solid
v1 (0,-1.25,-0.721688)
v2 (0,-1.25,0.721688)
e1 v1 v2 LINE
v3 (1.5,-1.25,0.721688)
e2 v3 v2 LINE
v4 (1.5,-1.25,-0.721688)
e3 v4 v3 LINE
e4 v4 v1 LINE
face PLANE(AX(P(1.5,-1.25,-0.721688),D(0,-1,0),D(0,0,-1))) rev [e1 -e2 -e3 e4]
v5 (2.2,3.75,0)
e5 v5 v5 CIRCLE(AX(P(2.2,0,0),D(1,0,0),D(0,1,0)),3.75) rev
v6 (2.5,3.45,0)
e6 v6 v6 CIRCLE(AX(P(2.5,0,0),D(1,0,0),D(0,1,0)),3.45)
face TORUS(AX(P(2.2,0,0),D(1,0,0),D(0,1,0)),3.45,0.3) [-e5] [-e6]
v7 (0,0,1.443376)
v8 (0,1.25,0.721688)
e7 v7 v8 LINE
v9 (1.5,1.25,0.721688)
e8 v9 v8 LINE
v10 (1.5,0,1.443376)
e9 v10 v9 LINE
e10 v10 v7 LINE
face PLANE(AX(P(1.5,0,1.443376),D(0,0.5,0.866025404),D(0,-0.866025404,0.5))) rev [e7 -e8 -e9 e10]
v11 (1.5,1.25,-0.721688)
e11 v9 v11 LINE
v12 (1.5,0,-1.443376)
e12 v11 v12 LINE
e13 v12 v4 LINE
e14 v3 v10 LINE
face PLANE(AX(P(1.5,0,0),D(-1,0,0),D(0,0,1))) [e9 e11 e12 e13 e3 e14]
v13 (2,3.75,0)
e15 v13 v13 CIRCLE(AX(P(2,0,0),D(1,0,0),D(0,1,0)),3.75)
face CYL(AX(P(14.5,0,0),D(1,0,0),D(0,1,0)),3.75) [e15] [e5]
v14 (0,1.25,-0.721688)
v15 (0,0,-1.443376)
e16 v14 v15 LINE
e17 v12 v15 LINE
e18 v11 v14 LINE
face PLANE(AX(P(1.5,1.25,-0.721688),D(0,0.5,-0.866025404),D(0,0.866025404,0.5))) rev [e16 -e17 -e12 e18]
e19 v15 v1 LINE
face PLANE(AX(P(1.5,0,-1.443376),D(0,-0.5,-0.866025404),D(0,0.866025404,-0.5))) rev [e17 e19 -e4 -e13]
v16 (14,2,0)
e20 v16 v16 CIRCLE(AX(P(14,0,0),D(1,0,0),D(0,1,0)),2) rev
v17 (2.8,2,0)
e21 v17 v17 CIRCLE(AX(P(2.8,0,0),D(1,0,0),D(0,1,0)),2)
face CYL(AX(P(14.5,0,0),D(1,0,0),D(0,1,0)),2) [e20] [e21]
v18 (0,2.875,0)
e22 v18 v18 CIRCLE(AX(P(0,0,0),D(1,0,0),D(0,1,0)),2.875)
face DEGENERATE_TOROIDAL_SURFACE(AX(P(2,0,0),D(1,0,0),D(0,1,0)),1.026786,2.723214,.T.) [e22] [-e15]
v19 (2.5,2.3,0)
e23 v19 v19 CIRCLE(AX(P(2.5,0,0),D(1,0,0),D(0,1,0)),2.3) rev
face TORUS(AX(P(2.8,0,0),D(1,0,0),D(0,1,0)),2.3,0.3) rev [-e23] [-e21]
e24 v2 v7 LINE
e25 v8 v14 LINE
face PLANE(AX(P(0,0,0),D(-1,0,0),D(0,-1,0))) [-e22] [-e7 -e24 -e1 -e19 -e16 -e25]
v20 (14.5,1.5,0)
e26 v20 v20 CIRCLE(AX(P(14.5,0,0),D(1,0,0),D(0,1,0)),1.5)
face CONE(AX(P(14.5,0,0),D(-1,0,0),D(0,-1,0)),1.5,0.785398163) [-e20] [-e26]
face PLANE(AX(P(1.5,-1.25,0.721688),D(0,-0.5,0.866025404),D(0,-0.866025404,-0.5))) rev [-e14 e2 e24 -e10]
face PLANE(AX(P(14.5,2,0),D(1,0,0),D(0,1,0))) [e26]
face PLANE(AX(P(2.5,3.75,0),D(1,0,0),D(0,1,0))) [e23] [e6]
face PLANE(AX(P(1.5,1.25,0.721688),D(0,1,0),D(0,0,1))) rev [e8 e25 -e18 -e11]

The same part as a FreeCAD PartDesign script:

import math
import FreeCAD as App
import Part
import Sketcher
from FreeCAD import Vector
Q = App.Units.Quantity


def edges_at(feature, points):
    """Names of the edges that pass closest to the given points."""
    edges = feature.Shape.Edges
    near = lambda p: min(range(len(edges)), key=lambda i: edges[i].distToShape(Part.Vertex(*p))[0])
    return sorted({f"Edge{near(p) + 1}" for p in points})


def add_polygon(sketch, points):
    """Adds a closed chain of lines whose ends are joined by coincident constraints."""
    first, n = sketch.GeometryCount, len(points)
    for a, b in zip(points, points[1:] + points[:1]):
        sketch.addGeometry(Part.LineSegment(App.Vector(*a, 0), App.Vector(*b, 0)), False)
    for i in range(n):
        sketch.addConstraint(Sketcher.Constraint("Coincident", first + i, 2, first + (i + 1) % n, 1))

doc = App.newDocument("Part")
body = doc.addObject("PartDesign::Body", "Body")

sketch1 = body.newObject("Sketcher::SketchObject", "Sketch")
sketch1.AttachmentSupport = (doc.getObject("XY_Plane"), [""])
sketch1.MapMode = "FlatFace"
sketch1.addGeometry([
    Part.LineSegment(Vector(0, 2.9, 0), Vector(0, 0, 0)),
    Part.LineSegment(Vector(0, 0, 0), Vector(14.5, 0, 0)),
    Part.LineSegment(Vector(14.5, 0, 0), Vector(14.5, 2, 0)),
    Part.LineSegment(Vector(14.5, 2, 0), Vector(2.5, 2, 0)),
    Part.LineSegment(Vector(2.5, 2, 0), Vector(2.5, 3.8, 0)),
    Part.LineSegment(Vector(2.5, 3.8, 0), Vector(2, 3.8, 0)),
    Part.ArcOfCircle(Part.Circle(Vector(2, 1, 0), Vector(0, 0, 1), 2.7), math.radians(90), math.radians(137)),
], False)
sketch1.addConstraint([
    Sketcher.Constraint("Coincident", 0, 2, 1, 1),
    Sketcher.Constraint("Coincident", 1, 2, 2, 1),
    Sketcher.Constraint("Coincident", 2, 2, 3, 1),
    Sketcher.Constraint("Coincident", 3, 2, 4, 1),
    Sketcher.Constraint("Coincident", 4, 2, 5, 1),
    Sketcher.Constraint("Tangent", 5, 2, 6, 1),
    Sketcher.Constraint("Coincident", 6, 2, 0, 1),
    Sketcher.Constraint("Vertical", 0),
    Sketcher.Constraint("Horizontal", 1),
    Sketcher.Constraint("Vertical", 2),
    Sketcher.Constraint("Horizontal", 3),
    Sketcher.Constraint("Vertical", 4),
    Sketcher.Constraint("Horizontal", 5),
    Sketcher.Constraint("Coincident", 0, 2, -1, 1),
    Sketcher.Constraint("DistanceX", 3, 2, 3, 1, Q("12 mm")),
    Sketcher.Constraint("DistanceY", 2, 1, 2, 2, Q("2 mm")),
    Sketcher.Constraint("DistanceX", 1, 1, 1, 2, Q("14.5 mm")),
    Sketcher.Constraint("DistanceX", 5, 2, 5, 1, Q("0.5 mm")),
    Sketcher.Constraint("DistanceY", 4, 1, 4, 2, Q("1.75 mm")),
    Sketcher.Constraint("DistanceY", 0, 2, 0, 1, Q("2.875 mm")),
])
revolution = body.newObject("PartDesign::Revolution", "Revolution")
revolution.Profile = sketch1
revolution.ReferenceAxis = (sketch1, ["H_Axis"])
revolution.Angle = 360

sketch2 = body.newObject("Sketcher::SketchObject", "Sketch001")
sketch2.AttachmentSupport = (doc.getObject("YZ_Plane"), [""])
sketch2.MapMode = "FlatFace"
add_polygon(sketch2, [(1.2, 0.7), (1.2, -0.7), (0, -1.4), (-1.2, -0.7), (-1.2, 0.7), (0, 1.4)])
sketch2.addConstraint([
    Sketcher.Constraint("Vertical", 0),
    Sketcher.Constraint("Vertical", 3),
    Sketcher.Constraint("Symmetric", 0, 2, 3, 2, -1, 1),
    Sketcher.Constraint("Symmetric", 1, 2, 4, 2, -1, 1),
    Sketcher.Constraint("PointOnObject", 1, 2, -2),
    Sketcher.Constraint("Parallel", 2, 5),
    Sketcher.Constraint("Horizontal", 0, 2, 2, 2),
    Sketcher.Constraint("Angle", 1, Q("-150 deg")),
    Sketcher.Constraint("DistanceX", 2, 2, 0, 2, Q("2.5 mm")),
    Sketcher.Constraint("DistanceY", 0, 2, 0, 1, Q("1.443376 mm")),
])
pocket1 = body.newObject("PartDesign::Pocket", "Pocket")
pocket1.Profile = sketch2
pocket1.Length = 1.5
pocket1.Reversed = True
doc.recompute()

fillet = body.newObject("PartDesign::Fillet", "Fillet")
fillet.Base = (pocket1, edges_at(pocket1, [(2.5, -2, 0), (2.5, -3.75, 0)]))
fillet.Radius = 0.3
doc.recompute()

chamfer = body.newObject("PartDesign::Chamfer", "Chamfer")
chamfer.Base = (fillet, edges_at(fillet, [(14.5, -2, 0)]))
chamfer.Size = 0.5

doc.recompute()
